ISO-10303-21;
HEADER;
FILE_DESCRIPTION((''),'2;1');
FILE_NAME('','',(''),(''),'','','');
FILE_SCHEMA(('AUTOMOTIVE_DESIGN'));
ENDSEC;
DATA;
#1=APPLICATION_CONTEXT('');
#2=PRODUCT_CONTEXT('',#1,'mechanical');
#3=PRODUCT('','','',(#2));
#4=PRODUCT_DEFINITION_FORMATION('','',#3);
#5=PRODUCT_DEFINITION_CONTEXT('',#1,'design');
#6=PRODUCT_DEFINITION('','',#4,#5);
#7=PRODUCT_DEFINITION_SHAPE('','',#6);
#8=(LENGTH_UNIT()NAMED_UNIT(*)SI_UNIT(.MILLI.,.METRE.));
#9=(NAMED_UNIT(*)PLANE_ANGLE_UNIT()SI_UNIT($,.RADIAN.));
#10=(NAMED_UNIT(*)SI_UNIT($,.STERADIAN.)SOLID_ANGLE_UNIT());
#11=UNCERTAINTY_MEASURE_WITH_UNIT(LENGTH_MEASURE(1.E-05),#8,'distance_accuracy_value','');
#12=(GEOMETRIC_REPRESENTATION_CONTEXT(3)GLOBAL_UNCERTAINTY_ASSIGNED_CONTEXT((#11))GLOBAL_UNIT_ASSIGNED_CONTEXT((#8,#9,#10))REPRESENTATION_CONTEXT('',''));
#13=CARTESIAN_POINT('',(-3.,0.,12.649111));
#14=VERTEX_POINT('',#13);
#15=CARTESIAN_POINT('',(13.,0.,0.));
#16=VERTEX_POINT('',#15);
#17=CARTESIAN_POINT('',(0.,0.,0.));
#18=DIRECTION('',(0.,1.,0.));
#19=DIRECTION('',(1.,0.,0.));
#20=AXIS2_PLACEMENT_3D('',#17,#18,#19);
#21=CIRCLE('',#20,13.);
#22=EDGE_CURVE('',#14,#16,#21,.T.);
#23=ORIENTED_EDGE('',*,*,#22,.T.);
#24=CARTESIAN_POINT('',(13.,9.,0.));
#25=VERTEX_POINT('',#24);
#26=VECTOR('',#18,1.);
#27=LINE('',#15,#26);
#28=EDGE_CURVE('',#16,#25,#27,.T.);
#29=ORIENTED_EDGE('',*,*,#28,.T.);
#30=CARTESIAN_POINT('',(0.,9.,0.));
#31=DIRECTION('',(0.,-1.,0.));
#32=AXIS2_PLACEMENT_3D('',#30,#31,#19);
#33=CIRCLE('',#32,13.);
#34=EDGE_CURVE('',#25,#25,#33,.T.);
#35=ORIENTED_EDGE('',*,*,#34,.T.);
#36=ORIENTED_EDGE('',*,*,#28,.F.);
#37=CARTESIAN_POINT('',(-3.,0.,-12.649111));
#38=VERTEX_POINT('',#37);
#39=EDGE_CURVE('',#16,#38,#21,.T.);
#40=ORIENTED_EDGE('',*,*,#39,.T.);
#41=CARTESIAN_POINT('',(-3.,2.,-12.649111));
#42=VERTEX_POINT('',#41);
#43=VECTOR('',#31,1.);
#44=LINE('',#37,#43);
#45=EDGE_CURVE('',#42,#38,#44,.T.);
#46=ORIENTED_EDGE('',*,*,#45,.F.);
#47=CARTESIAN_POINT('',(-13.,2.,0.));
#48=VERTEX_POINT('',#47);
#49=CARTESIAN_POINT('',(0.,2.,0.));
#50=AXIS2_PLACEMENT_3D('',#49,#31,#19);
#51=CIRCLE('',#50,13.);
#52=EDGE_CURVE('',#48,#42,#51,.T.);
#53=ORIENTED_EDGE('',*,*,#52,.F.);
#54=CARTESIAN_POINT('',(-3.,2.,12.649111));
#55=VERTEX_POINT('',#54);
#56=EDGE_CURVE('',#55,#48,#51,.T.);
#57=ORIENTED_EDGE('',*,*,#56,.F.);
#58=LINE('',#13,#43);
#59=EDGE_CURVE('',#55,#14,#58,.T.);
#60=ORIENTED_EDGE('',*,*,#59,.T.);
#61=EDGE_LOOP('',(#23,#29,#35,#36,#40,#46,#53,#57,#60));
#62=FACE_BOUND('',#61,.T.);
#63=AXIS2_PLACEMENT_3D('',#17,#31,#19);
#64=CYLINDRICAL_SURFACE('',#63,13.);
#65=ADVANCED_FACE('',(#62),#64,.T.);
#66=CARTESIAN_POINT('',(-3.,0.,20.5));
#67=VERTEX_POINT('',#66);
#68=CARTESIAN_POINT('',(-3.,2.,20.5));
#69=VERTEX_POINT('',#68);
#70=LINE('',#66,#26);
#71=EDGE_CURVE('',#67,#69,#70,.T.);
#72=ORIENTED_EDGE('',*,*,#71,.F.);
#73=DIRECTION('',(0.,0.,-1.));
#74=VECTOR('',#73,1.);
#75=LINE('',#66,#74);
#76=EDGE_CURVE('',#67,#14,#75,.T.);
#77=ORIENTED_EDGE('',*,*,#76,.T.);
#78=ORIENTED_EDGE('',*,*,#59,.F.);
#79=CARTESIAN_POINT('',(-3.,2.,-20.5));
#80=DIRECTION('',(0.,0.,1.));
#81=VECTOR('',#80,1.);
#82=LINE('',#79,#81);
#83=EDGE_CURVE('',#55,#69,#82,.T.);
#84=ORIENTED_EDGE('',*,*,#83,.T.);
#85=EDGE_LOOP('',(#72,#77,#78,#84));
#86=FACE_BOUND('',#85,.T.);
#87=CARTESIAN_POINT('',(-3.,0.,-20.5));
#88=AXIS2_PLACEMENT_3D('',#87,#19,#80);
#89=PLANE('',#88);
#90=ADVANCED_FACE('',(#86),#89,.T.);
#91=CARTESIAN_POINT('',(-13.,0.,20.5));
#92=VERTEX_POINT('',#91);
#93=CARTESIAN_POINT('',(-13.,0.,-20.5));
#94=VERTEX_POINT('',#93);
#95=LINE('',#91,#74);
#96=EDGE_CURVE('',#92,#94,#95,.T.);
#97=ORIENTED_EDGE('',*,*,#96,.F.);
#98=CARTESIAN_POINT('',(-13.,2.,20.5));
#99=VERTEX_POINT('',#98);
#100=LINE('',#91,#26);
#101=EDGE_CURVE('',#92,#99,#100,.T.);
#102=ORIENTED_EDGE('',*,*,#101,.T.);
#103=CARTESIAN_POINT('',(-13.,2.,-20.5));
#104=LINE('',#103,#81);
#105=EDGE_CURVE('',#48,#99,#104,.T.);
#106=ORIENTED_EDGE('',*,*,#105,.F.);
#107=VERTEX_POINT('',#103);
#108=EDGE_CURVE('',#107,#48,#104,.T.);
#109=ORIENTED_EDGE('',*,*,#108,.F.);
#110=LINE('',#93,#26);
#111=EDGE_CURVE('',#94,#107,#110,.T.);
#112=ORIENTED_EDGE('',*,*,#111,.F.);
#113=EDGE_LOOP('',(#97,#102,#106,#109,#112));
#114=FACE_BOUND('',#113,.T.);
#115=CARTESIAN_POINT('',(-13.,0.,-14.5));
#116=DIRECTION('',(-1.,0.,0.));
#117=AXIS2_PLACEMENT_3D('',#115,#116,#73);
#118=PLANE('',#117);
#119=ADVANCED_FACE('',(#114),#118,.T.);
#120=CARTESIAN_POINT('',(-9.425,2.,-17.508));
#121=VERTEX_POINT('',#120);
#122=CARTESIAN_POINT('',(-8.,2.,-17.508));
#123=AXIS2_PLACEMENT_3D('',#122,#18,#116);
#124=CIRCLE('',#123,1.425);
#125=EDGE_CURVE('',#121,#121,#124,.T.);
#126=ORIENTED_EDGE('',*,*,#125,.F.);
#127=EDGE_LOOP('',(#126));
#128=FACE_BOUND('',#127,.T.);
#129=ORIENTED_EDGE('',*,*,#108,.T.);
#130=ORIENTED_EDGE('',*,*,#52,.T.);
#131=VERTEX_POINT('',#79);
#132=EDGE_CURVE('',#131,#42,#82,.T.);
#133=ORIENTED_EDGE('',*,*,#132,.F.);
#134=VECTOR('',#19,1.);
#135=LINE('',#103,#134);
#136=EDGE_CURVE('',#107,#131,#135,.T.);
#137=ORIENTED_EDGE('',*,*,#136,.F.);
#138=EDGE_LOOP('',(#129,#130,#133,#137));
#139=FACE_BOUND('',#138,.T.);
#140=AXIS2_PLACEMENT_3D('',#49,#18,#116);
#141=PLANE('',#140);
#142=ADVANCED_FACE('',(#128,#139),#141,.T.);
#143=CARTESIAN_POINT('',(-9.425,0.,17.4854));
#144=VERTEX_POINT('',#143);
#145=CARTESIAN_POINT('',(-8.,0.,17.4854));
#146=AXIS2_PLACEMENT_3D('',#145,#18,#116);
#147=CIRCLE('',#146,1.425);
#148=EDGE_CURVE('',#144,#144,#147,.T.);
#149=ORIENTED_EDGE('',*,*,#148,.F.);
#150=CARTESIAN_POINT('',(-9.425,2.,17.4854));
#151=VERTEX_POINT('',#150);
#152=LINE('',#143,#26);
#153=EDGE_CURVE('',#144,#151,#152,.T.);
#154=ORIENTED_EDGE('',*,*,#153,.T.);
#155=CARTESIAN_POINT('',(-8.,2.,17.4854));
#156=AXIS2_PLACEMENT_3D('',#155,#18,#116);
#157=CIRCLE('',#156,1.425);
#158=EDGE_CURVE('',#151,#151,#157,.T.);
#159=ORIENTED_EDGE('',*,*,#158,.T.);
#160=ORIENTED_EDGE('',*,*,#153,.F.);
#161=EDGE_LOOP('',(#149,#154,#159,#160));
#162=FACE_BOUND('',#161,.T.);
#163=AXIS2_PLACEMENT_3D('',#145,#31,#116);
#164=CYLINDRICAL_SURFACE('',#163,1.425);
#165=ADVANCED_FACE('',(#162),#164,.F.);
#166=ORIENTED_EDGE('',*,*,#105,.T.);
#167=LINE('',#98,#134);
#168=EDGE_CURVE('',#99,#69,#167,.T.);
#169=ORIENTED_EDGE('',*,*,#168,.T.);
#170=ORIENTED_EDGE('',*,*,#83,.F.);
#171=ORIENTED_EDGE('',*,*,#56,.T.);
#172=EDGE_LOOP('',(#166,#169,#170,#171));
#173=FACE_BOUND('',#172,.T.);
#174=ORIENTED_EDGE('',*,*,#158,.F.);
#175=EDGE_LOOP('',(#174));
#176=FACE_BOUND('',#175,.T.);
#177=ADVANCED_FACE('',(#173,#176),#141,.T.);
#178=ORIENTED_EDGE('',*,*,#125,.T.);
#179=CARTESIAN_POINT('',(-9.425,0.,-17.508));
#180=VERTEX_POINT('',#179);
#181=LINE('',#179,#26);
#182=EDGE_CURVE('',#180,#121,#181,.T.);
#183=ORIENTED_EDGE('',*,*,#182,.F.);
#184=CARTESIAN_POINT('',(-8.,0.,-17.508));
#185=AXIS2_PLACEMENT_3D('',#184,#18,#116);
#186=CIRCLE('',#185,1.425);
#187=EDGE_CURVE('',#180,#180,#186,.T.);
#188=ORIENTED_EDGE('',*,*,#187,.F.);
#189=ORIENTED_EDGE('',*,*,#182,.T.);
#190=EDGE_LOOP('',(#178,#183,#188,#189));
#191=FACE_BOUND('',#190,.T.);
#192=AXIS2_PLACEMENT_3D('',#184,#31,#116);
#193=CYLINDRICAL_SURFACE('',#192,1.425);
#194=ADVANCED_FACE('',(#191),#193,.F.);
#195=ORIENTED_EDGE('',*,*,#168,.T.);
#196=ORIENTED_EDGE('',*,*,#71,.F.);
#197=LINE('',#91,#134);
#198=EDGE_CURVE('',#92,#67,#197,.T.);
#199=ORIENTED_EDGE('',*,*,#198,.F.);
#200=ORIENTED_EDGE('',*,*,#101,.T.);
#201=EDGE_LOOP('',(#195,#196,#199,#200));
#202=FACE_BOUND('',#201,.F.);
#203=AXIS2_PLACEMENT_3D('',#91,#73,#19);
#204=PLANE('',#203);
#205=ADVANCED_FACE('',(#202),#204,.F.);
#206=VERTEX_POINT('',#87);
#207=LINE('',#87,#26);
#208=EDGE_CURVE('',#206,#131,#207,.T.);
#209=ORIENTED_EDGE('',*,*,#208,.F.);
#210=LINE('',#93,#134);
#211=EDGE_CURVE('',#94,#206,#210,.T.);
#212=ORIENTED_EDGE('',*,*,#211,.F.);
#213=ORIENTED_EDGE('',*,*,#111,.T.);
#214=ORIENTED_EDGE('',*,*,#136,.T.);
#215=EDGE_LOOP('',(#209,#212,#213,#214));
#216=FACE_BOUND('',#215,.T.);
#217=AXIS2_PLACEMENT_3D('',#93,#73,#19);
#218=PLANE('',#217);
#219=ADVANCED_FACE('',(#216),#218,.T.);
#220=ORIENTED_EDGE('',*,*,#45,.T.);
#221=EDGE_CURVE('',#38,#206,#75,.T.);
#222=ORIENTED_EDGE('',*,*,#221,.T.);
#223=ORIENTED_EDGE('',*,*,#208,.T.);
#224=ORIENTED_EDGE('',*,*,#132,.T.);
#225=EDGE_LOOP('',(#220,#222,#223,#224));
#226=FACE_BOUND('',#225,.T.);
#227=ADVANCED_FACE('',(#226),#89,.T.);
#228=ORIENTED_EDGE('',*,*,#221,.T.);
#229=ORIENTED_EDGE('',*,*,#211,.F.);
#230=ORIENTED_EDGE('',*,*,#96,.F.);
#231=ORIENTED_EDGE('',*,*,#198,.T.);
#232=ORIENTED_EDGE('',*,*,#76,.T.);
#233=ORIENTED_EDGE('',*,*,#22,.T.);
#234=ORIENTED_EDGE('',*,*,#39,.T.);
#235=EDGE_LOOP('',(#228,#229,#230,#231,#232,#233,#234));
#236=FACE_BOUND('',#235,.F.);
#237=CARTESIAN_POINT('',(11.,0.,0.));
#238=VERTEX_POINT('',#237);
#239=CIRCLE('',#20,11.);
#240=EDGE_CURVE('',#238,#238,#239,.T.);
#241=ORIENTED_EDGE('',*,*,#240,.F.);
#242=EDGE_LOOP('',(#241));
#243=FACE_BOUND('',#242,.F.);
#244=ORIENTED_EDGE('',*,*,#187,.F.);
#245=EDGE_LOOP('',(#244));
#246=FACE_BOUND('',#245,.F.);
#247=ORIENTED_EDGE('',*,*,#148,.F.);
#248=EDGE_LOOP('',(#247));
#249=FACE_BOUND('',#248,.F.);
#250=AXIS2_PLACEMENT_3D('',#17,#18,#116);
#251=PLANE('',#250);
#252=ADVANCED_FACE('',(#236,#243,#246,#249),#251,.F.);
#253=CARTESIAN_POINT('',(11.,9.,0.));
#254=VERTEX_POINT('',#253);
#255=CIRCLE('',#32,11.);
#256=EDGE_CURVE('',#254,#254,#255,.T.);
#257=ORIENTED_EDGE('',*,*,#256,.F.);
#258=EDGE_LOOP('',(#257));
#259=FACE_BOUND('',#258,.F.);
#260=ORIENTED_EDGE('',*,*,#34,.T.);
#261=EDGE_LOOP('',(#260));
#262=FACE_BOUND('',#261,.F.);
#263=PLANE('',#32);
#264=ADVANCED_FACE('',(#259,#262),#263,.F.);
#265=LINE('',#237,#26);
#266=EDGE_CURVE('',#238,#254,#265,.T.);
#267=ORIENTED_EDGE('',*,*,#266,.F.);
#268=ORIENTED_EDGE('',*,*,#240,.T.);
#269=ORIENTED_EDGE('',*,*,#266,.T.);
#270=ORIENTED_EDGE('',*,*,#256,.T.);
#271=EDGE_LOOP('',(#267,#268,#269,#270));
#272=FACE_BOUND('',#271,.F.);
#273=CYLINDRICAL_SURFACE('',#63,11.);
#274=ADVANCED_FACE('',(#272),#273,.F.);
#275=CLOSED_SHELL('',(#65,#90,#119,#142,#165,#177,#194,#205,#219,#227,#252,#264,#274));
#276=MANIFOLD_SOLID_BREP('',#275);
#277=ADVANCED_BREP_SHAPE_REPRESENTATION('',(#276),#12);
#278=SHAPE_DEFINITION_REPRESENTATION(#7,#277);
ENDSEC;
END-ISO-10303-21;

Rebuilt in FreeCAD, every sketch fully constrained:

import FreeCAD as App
import Part
import Sketcher
from FreeCAD import Vector
Q = App.Units.Quantity

doc = App.newDocument("Part")
body = doc.addObject("PartDesign::Body", "Body")

# Sketch on XZ plane
sketch1 = doc.addObject("Sketcher::SketchObject", "Sketch")
body.addObject(sketch1)
sketch1.AttachmentSupport = (doc.XZ_Plane, [""])
sketch1.MapMode = "FlatFace"
sketch1.addGeometry(Part.LineSegment(Vector(-3, -20.5, 0), Vector(-13, -20.5, 0)), False)
sketch1.addGeometry(Part.LineSegment(Vector(-13, -20.5, 0), Vector(-13, 20.5, 0)), False)
sketch1.addGeometry(Part.LineSegment(Vector(-13, 20.5, 0), Vector(-3, 20.5, 0)), False)
sketch1.addGeometry(Part.LineSegment(Vector(-3, 20.5, 0), Vector(-3, -20.5, 0)), False)
sketch1.addGeometry(Part.Circle(Vector(-8, -17.5, 0), Vector(0, 0, 1), 1.4), False)
sketch1.addGeometry(Part.Circle(Vector(-8, 17.5, 0), Vector(0, 0, 1), 1.4), False)
sketch1.addConstraint(Sketcher.Constraint("Coincident", 0, 2, 1, 1))
sketch1.addConstraint(Sketcher.Constraint("Coincident", 1, 2, 2, 1))
sketch1.addConstraint(Sketcher.Constraint("Coincident", 2, 2, 3, 1))
sketch1.addConstraint(Sketcher.Constraint("Coincident", 3, 2, 0, 1))
sketch1.addConstraint(Sketcher.Constraint("Horizontal", 0))
sketch1.addConstraint(Sketcher.Constraint("Vertical", 1))
sketch1.addConstraint(Sketcher.Constraint("Horizontal", 2))
sketch1.addConstraint(Sketcher.Constraint("Vertical", 3))
sketch1.addConstraint(Sketcher.Constraint("Equal", 4, 5))
sketch1.addConstraint(Sketcher.Constraint("Vertical", 4, 3, 5, 3))
sketch1.addConstraint(Sketcher.Constraint("DistanceX", 0, 2, 0, 1, Q("10 mm")))
sketch1.addConstraint(Sketcher.Constraint("DistanceY", 1, 1, 1, 2, Q("41 mm")))
sketch1.addConstraint(Sketcher.Constraint("Diameter", 4, Q("2.85 mm")))
sketch1.addConstraint(Sketcher.Constraint("DistanceX", 4, 3, -1, 1, Q("8 mm")))
sketch1.addConstraint(Sketcher.Constraint("DistanceX", 0, 2, -1, 1, Q("13 mm")))
sketch1.addConstraint(Sketcher.Constraint("DistanceY", 0, 2, -1, 1, Q("20.5 mm")))
sketch1.addConstraint(Sketcher.Constraint("DistanceY", 4, 3, -1, 1, Q("17.508 mm")))
sketch1.addConstraint(Sketcher.Constraint("DistanceY", -1, 1, 5, 3, Q("17.4854 mm")))
pad1 = doc.addObject("PartDesign::Pad", "Pad")
body.addObject(pad1)
pad1.Profile = sketch1
pad1.Length = 2
pad1.Reversed = True

# Sketch on XZ plane
sketch2 = doc.addObject("Sketcher::SketchObject", "Sketch001")
body.addObject(sketch2)
sketch2.AttachmentSupport = (doc.XZ_Plane, [""])
sketch2.MapMode = "FlatFace"
sketch2.addGeometry(Part.Circle(Vector(0, 0, 0), Vector(0, 0, 1), 13), False)
sketch2.addGeometry(Part.Circle(Vector(0, 0, 0), Vector(0, 0, 1), 11), False)
sketch2.addConstraint(Sketcher.Constraint("Coincident", 0, 3, -1, 1))
sketch2.addConstraint(Sketcher.Constraint("Coincident", 1, 3, -1, 1))
sketch2.addConstraint(Sketcher.Constraint("Diameter", 0, Q("26 mm")))
sketch2.addConstraint(Sketcher.Constraint("Diameter", 1, Q("22 mm")))
pad2 = doc.addObject("PartDesign::Pad", "Pad001")
body.addObject(pad2)
pad2.Profile = sketch2
pad2.Length = 9
pad2.Reversed = True

# Sketch on XZ plane
sketch3 = doc.addObject("Sketcher::SketchObject", "Sketch002")
body.addObject(sketch3)
sketch3.AttachmentSupport = (doc.XZ_Plane, [""])
sketch3.MapMode = "FlatFace"
sketch3.AttachmentOffset = App.Placement(Vector(0, 0, -9), App.Rotation())
sketch3.addGeometry(Part.Circle(Vector(0, 0, 0), Vector(0, 0, 1), 11), False)
sketch3.addConstraint(Sketcher.Constraint("Coincident", 0, 3, -1, 1))
sketch3.addConstraint(Sketcher.Constraint("Diameter", 0, Q("22 mm")))
pocket1 = doc.addObject("PartDesign::Pocket", "Pocket")
body.addObject(pocket1)
pocket1.Profile = sketch3
pocket1.Type = "ThroughAll"
pocket1.Reversed = True

doc.recompute()
